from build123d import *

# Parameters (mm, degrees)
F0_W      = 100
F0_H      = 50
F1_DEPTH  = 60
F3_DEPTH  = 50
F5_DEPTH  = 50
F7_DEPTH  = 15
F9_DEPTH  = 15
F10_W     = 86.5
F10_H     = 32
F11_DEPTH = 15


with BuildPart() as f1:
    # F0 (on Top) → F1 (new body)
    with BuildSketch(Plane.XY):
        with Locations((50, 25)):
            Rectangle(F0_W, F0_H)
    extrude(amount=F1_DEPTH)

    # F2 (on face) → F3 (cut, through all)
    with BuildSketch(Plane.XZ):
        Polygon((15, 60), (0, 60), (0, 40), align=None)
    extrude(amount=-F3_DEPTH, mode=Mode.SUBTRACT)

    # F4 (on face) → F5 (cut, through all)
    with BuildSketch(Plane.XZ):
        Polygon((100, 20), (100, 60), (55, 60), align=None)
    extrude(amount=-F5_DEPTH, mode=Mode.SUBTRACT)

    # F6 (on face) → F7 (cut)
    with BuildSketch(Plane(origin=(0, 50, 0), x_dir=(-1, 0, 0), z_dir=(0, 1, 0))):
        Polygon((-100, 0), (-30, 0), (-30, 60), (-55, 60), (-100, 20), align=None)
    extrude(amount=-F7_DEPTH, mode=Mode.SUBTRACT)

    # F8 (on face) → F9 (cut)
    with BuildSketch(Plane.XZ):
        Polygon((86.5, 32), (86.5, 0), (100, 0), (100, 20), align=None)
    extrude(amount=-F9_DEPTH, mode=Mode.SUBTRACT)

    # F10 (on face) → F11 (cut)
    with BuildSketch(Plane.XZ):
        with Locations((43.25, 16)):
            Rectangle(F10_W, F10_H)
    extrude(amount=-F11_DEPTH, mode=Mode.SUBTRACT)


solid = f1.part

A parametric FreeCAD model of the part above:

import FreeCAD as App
import Part
import Sketcher

V = App.Vector

doc = App.newDocument("Part")
body = doc.addObject("PartDesign::Body", "Body")

# Sketch on XY plane
sketch1 = doc.addObject("Sketcher::SketchObject", "Sketch")
body.addObject(sketch1)
sketch1.AttachmentSupport = (doc.XY_Plane, [""])
sketch1.MapMode = "FlatFace"
sketch1.addGeometry([
    Part.LineSegment(V(0, 50, 0), V(0, 0, 0)),
    Part.LineSegment(V(0, 0, 0), V(100, 0, 0)),
    Part.LineSegment(V(100, 0, 0), V(100, 50, 0)),
    Part.LineSegment(V(100, 50, 0), V(0, 50, 0)),
], False)
sketch1.addConstraint([
    Sketcher.Constraint("Coincident", 0, 2, 1, 1),
    Sketcher.Constraint("Coincident", 1, 2, 2, 1),
    Sketcher.Constraint("Coincident", 2, 2, 3, 1),
    Sketcher.Constraint("Coincident", 3, 2, 0, 1),
    Sketcher.Constraint("Vertical", 0),
    Sketcher.Constraint("Horizontal", 1),
    Sketcher.Constraint("Vertical", 2),
    Sketcher.Constraint("Horizontal", 3),
    Sketcher.Constraint("Coincident", 0, 2, -1, 1),
    Sketcher.Constraint("DistanceX", 1, 1, 1, 2, 100.0),
    Sketcher.Constraint("DistanceY", 0, 2, 0, 1, 50.0),
])
pad1 = doc.addObject("PartDesign::Pad", "Pad")
body.addObject(pad1)
pad1.Profile = sketch1
pad1.Length = 60

# Sketch on XZ plane
sketch2 = doc.addObject("Sketcher::SketchObject", "Sketch001")
body.addObject(sketch2)
sketch2.AttachmentSupport = (doc.XZ_Plane, [""])
sketch2.MapMode = "FlatFace"
sketch2.addGeometry([
    Part.LineSegment(V(15, 60, 0), V(0, 60, 0)),
    Part.LineSegment(V(0, 60, 0), V(0, 40, 0)),
    Part.LineSegment(V(0, 40, 0), V(15, 60, 0)),
], False)
sketch2.addConstraint([
    Sketcher.Constraint("Coincident", 0, 2, 1, 1),
    Sketcher.Constraint("Coincident", 1, 2, 2, 1),
    Sketcher.Constraint("Coincident", 2, 2, 0, 1),
    Sketcher.Constraint("Horizontal", 0),
    Sketcher.Constraint("Vertical", 1),
    Sketcher.Constraint("PointOnObject", 0, 2, -2),
    Sketcher.Constraint("DistanceX", 0, 2, 0, 1, 15.0),
    Sketcher.Constraint("DistanceY", 1, 2, 1, 1, 20.0),
    Sketcher.Constraint("DistanceY", -1, 1, 0, 2, 60.0),
])
pocket1 = doc.addObject("PartDesign::Pocket", "Pocket")
body.addObject(pocket1)
pocket1.Profile = sketch2
pocket1.Type = "ThroughAll"

# Sketch on XZ plane
sketch3 = doc.addObject("Sketcher::SketchObject", "Sketch002")
body.addObject(sketch3)
sketch3.AttachmentSupport = (doc.XZ_Plane, [""])
sketch3.MapMode = "FlatFace"
sketch3.addGeometry([
    Part.LineSegment(V(100, 20, 0), V(100, 60, 0)),
    Part.LineSegment(V(100, 60, 0), V(55, 60, 0)),
    Part.LineSegment(V(55, 60, 0), V(100, 20, 0)),
], False)
sketch3.addConstraint([
    Sketcher.Constraint("Coincident", 0, 2, 1, 1),
    Sketcher.Constraint("Coincident", 1, 2, 2, 1),
    Sketcher.Constraint("Coincident", 2, 2, 0, 1),
    Sketcher.Constraint("Vertical", 0),
    Sketcher.Constraint("Horizontal", 1),
    Sketcher.Constraint("DistanceX", 1, 2, 1, 1, 45.0),
    Sketcher.Constraint("DistanceY", 0, 1, 0, 2, 40.0),
    Sketcher.Constraint("DistanceX", -1, 1, 0, 2, 100.0),
    Sketcher.Constraint("DistanceY", -1, 1, 0, 2, 60.0),
])
pocket2 = doc.addObject("PartDesign::Pocket", "Pocket001")
body.addObject(pocket2)
pocket2.Profile = sketch3
pocket2.Type = "ThroughAll"

# Sketch on XZ plane
sketch4 = doc.addObject("Sketcher::SketchObject", "Sketch003")
body.addObject(sketch4)
sketch4.AttachmentSupport = (doc.XZ_Plane, [""])
sketch4.MapMode = "FlatFace"
sketch4.AttachmentOffset = App.Placement(V(0, 0, -50), App.Rotation())
sketch4.addGeometry([
    Part.LineSegment(V(100, 0, 0), V(30, 0, 0)),  # 0
    Part.LineSegment(V(30, 0, 0), V(30, 60, 0)),  # 1
    Part.LineSegment(V(30, 60, 0), V(55, 60, 0)),  # 2
    Part.LineSegment(V(55, 60, 0), V(100, 20, 0)),  # 3
    Part.LineSegment(V(100, 20, 0), V(100, 0, 0)),  # 4
], False)
sketch4.addConstraint([
    Sketcher.Constraint("Coincident", 0, 2, 1, 1),
    Sketcher.Constraint("Coincident", 1, 2, 2, 1),
    Sketcher.Constraint("Coincident", 2, 2, 3, 1),
    Sketcher.Constraint("Coincident", 3, 2, 4, 1),
    Sketcher.Constraint("Coincident", 4, 2, 0, 1),
    Sketcher.Constraint("Horizontal", 0),
    Sketcher.Constraint("Vertical", 1),
    Sketcher.Constraint("Horizontal", 2),
    Sketcher.Constraint("Vertical", 4),
    Sketcher.Constraint("PointOnObject", 0, 2, -1),
    Sketcher.Constraint("DistanceX", 0, 2, 0, 1, 70.0),
    Sketcher.Constraint("DistanceX", 2, 1, 2, 2, 25.0),
    Sketcher.Constraint("DistanceY", 1, 1, 1, 2, 60.0),
    Sketcher.Constraint("DistanceY", 4, 2, 4, 1, 20.0),
    Sketcher.Constraint("DistanceX", -1, 1, 0, 2, 30.0),
])
pocket3 = doc.addObject("PartDesign::Pocket", "Pocket002")
body.addObject(pocket3)
pocket3.Profile = sketch4
pocket3.Length = 15
pocket3.Reversed = True

# Sketch on XZ plane
sketch5 = doc.addObject("Sketcher::SketchObject", "Sketch004")
body.addObject(sketch5)
sketch5.AttachmentSupport = (doc.XZ_Plane, [""])
sketch5.MapMode = "FlatFace"
sketch5.addGeometry([
    Part.LineSegment(V(86, 32, 0), V(86, 0, 0)),
    Part.LineSegment(V(86, 0, 0), V(100, 0, 0)),
    Part.LineSegment(V(100, 0, 0), V(100, 20, 0)),
    Part.LineSegment(V(100, 20, 0), V(86, 32, 0)),
], False)
sketch5.addConstraint([
    Sketcher.Constraint("Coincident", 0, 2, 1, 1),
    Sketcher.Constraint("Coincident", 1, 2, 2, 1),
    Sketcher.Constraint("Coincident", 2, 2, 3, 1),
    Sketcher.Constraint("Coincident", 3, 2, 0, 1),
    Sketcher.Constraint("Vertical", 0),
    Sketcher.Constraint("Horizontal", 1),
    Sketcher.Constraint("Vertical", 2),
    Sketcher.Constraint("PointOnObject", 0, 2, -1),
    Sketcher.Constraint("DistanceY", 0, 2, 0, 1, 32.0),
    Sketcher.Constraint("DistanceY", 2, 1, 2, 2, 20.0),
    Sketcher.Constraint("DistanceX", 1, 1, 1, 2, 13.5),
    Sketcher.Constraint("DistanceX", -1, 1, 1, 2, 100.0),
])
pocket4 = doc.addObject("PartDesign::Pocket", "Pocket003")
body.addObject(pocket4)
pocket4.Profile = sketch5
pocket4.Length = 15

# Sketch on XZ plane
sketch6 = doc.addObject("Sketcher::SketchObject", "Sketch005")
body.addObject(sketch6)
sketch6.AttachmentSupport = (doc.XZ_Plane, [""])
sketch6.MapMode = "FlatFace"
sketch6.addGeometry([
    Part.LineSegment(V(0, 32, 0), V(0, 0, 0)),
    Part.LineSegment(V(0, 0, 0), V(86, 0, 0)),
    Part.LineSegment(V(86, 0, 0), V(86, 32, 0)),
    Part.LineSegment(V(86, 32, 0), V(0, 32, 0)),
], False)
sketch6.addConstraint([
    Sketcher.Constraint("Coincident", 0, 2, 1, 1),
    Sketcher.Constraint("Coincident", 1, 2, 2, 1),
    Sketcher.Constraint("Coincident", 2, 2, 3, 1),
    Sketcher.Constraint("Coincident", 3, 2, 0, 1),
    Sketcher.Constraint("Vertical", 0),
    Sketcher.Constraint("Horizontal", 1),
    Sketcher.Constraint("Vertical", 2),
    Sketcher.Constraint("Horizontal", 3),
    Sketcher.Constraint("Coincident", 0, 2, -1, 1),
    Sketcher.Constraint("DistanceY", 0, 2, 0, 1, 32.0),
    Sketcher.Constraint("DistanceX", 1, 1, 1, 2, 86.5),
])
pocket5 = doc.addObject("PartDesign::Pocket", "Pocket004")
body.addObject(pocket5)
pocket5.Profile = sketch6
pocket5.Length = 15

doc.recompute()
